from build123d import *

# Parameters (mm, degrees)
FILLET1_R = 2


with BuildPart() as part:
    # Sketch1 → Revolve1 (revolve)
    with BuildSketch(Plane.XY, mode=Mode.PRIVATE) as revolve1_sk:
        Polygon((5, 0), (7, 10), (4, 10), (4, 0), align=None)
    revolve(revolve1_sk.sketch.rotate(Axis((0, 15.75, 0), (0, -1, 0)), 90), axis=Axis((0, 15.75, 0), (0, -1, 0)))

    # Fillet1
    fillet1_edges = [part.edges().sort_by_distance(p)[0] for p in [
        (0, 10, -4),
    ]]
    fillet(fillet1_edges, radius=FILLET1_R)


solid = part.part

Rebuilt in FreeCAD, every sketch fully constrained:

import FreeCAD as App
import Part
import Sketcher
Q = App.Units.Quantity


def edges_at(feature, points):
    """Names of the edges that pass closest to the given points."""
    edges = feature.Shape.Edges
    near = lambda p: min(range(len(edges)), key=lambda i: edges[i].distToShape(Part.Vertex(*p))[0])
    return sorted({f"Edge{near(p) + 1}" for p in points})

doc = App.newDocument("Part")
params = doc.addObject("Spreadsheet::Sheet", "Params")
for row, (alias, value) in enumerate([
    ("sketch1_width", "3 mm"),
    ("sketch1_width2", "1 mm"),
    ("sketch1_height", "10 mm"),
    ("revolution_angle", "360 deg"),
    ("fillet_radius", "2 mm"),
], start=1):
    params.set(f"A{row}", alias)
    params.set(f"B{row}", "=" + value)
    params.setAlias(f"B{row}", alias)

body = doc.addObject("PartDesign::Body", "Body")

sketch1 = body.newObject("Sketcher::SketchObject", "Sketch")
sketch1.AttachmentSupport = (doc.getObject("XY_Plane"), [""])
sketch1.MapMode = "FlatFace"
sketch1.addGeometry(Part.LineSegment(App.Vector(5, 0, 0), App.Vector(7, 10, 0)), False)
sketch1.addGeometry(Part.LineSegment(App.Vector(7, 10, 0), App.Vector(4, 10, 0)), False)
sketch1.addGeometry(Part.LineSegment(App.Vector(4, 10, 0), App.Vector(4, 0, 0)), False)
sketch1.addGeometry(Part.LineSegment(App.Vector(4, 0, 0), App.Vector(5, 0, 0)), False)
sketch1.addConstraint(Sketcher.Constraint("Coincident", 0, 2, 1, 1))
sketch1.addConstraint(Sketcher.Constraint("Coincident", 1, 2, 2, 1))
sketch1.addConstraint(Sketcher.Constraint("Coincident", 2, 2, 3, 1))
sketch1.addConstraint(Sketcher.Constraint("Coincident", 3, 2, 0, 1))
sketch1.addConstraint(Sketcher.Constraint("Horizontal", 1))
sketch1.addConstraint(Sketcher.Constraint("Vertical", 2))
sketch1.addConstraint(Sketcher.Constraint("Horizontal", 3))
sketch1.addConstraint(Sketcher.Constraint("PointOnObject", 2, 2, -1))
sketch1.addConstraint(Sketcher.Constraint("DistanceX", 1, 2, 1, 1, Q("3 mm")))
sketch1.addConstraint(Sketcher.Constraint("DistanceX", 3, 1, 3, 2, Q("1 mm")))
sketch1.addConstraint(Sketcher.Constraint("DistanceY", 2, 2, 2, 1, Q("10 mm")))
sketch1.addConstraint(Sketcher.Constraint("DistanceX", -1, 1, 0, 2, Q("7 mm")))
sketch1.setExpression("Constraints[8]", "Params.sketch1_width")
sketch1.setExpression("Constraints[9]", "Params.sketch1_width2")
sketch1.setExpression("Constraints[10]", "Params.sketch1_height")
revolution = body.newObject("PartDesign::Revolution", "Revolution")
revolution.Profile = sketch1
revolution.ReferenceAxis = (sketch1, ["V_Axis"])
revolution.setExpression("Angle", "Params.revolution_angle")
doc.recompute()

fillet = body.newObject("PartDesign::Fillet", "Fillet")
fillet.Base = (revolution, edges_at(revolution, [(0, 10, -4)]))
fillet.setExpression("Radius", "Params.fillet_radius")

doc.recompute()
